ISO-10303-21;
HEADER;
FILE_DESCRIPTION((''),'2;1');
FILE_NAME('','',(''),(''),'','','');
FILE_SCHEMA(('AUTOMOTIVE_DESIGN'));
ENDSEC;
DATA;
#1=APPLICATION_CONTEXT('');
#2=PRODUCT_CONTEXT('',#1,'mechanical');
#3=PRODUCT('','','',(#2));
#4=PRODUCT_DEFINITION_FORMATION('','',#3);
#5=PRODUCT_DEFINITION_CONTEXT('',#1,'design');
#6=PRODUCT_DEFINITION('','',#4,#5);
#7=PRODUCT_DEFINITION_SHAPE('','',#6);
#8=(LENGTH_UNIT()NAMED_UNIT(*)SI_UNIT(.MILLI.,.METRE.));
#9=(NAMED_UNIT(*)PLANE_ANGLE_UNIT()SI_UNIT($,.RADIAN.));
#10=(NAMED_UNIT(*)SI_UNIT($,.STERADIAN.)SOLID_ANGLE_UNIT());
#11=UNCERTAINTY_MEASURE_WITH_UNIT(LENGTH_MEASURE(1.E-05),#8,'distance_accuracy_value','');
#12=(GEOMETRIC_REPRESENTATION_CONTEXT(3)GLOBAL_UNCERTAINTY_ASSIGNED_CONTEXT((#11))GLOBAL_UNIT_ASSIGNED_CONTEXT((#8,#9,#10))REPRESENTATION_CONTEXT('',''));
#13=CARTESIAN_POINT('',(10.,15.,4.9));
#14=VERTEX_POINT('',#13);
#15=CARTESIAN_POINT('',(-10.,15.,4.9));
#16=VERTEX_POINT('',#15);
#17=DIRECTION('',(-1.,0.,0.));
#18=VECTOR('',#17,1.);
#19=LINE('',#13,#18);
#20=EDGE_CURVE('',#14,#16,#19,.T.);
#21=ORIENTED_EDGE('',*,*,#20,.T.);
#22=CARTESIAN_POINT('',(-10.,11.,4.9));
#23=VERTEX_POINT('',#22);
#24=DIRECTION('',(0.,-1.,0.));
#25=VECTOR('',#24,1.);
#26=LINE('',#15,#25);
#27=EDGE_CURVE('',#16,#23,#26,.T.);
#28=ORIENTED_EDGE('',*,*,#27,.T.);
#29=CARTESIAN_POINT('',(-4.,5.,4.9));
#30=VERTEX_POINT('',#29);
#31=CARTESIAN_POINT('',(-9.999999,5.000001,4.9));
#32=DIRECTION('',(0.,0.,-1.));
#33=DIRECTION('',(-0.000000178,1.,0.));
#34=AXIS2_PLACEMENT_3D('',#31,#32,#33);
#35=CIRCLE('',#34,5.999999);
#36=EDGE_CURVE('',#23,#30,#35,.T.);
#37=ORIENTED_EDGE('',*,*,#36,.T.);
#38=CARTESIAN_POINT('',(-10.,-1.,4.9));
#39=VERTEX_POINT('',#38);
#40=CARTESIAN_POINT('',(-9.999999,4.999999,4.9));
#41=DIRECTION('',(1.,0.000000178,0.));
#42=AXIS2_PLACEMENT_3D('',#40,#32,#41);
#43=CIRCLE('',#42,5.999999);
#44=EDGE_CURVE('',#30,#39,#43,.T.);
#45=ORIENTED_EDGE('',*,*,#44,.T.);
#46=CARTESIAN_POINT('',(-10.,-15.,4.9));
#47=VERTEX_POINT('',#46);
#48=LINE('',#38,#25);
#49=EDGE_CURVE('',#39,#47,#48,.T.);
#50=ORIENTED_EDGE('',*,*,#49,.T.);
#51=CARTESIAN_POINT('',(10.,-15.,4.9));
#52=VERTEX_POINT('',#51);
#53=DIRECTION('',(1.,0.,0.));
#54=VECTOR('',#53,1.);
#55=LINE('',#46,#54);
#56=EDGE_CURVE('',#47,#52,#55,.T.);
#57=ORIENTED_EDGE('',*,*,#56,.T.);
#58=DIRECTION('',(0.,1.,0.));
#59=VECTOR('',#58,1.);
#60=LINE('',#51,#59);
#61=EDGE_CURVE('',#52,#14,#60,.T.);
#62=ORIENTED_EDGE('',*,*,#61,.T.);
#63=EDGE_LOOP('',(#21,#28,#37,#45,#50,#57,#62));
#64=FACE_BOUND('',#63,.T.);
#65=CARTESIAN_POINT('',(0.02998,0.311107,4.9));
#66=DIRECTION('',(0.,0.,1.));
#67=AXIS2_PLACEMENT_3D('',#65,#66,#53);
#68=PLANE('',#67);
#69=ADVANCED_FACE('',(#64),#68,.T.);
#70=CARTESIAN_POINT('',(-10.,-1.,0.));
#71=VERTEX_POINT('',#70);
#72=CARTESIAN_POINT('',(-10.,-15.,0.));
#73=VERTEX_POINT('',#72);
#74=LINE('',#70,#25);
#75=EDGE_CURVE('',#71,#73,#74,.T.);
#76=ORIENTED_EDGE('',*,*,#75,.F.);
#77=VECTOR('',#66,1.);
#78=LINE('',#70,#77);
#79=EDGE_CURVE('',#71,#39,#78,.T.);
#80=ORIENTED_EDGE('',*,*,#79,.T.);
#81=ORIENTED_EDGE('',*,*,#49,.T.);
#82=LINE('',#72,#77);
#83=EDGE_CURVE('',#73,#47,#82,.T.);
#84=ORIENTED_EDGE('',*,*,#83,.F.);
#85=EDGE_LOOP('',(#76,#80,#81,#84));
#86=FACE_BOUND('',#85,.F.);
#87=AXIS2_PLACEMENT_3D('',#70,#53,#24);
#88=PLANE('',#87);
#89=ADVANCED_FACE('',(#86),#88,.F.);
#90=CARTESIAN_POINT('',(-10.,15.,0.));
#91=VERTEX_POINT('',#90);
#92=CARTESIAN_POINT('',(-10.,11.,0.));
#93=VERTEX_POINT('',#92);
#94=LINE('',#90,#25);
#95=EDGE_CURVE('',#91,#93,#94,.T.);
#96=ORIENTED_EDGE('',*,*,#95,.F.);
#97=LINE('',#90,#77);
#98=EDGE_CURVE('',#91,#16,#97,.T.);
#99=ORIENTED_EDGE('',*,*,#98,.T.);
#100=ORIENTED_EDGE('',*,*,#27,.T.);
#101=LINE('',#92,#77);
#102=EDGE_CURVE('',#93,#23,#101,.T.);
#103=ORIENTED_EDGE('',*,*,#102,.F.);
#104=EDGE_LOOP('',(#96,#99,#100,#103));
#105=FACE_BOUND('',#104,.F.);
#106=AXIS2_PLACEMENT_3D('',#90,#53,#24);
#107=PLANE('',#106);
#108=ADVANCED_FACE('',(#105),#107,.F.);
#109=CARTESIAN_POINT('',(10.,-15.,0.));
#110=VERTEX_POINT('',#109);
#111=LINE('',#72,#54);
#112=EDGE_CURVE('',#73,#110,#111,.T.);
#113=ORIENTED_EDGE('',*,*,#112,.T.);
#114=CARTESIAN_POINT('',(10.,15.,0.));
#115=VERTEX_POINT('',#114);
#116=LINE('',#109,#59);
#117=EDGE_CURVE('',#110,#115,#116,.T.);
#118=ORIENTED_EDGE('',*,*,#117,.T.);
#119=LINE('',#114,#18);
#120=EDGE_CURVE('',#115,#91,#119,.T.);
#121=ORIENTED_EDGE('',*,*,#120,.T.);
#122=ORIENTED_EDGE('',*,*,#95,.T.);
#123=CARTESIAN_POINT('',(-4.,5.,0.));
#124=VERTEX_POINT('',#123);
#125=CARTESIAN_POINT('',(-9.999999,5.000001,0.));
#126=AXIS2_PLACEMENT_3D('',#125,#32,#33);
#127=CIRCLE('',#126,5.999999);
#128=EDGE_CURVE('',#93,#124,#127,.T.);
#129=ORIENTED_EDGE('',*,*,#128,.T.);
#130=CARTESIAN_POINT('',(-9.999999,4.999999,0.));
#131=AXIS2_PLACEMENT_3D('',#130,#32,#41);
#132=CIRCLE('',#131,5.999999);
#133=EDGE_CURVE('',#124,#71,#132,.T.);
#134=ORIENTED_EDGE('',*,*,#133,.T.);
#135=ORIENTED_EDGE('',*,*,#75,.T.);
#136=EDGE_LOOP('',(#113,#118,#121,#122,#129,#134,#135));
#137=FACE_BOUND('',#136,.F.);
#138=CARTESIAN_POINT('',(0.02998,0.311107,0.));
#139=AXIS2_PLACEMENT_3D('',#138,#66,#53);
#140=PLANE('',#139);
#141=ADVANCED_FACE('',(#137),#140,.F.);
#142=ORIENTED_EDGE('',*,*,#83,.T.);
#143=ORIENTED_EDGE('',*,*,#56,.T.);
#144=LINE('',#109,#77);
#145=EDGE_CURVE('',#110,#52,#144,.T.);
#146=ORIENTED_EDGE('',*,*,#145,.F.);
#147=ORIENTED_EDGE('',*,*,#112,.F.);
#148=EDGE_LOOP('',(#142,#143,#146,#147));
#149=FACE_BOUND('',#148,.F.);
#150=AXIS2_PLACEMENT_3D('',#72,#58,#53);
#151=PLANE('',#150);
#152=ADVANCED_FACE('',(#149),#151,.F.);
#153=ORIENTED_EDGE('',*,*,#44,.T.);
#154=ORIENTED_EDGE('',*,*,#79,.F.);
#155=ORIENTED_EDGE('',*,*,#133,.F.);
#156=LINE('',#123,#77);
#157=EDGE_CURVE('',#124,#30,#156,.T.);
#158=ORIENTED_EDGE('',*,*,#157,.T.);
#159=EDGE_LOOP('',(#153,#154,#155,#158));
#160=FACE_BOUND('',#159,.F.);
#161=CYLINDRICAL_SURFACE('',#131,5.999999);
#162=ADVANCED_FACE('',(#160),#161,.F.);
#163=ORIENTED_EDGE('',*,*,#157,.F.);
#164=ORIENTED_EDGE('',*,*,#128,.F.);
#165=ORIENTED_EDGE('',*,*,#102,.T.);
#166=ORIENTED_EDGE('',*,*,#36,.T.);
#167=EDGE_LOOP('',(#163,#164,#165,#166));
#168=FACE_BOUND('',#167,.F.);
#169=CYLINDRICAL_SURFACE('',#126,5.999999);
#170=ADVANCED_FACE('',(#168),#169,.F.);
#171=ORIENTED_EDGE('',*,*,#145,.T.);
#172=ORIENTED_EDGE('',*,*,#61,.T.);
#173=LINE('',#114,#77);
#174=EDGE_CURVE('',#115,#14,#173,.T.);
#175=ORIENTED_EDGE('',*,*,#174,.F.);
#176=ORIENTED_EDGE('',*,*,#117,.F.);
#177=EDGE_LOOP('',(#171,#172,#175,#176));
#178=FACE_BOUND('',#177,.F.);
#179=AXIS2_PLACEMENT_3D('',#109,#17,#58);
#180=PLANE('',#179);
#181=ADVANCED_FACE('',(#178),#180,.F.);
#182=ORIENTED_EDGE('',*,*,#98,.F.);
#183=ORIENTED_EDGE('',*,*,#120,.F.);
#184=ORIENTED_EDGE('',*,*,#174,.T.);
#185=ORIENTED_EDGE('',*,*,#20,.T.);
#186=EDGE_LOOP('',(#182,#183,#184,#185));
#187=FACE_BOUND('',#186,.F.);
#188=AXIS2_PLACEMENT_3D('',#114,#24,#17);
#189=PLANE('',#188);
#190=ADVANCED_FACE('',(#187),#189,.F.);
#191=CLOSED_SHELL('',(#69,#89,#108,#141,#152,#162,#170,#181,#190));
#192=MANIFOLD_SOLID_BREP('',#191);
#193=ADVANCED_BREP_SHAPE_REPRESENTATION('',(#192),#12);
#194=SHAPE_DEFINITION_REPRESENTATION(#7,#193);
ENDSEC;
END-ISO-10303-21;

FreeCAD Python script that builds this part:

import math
import FreeCAD as App
import Part
import Sketcher

doc = App.newDocument("Part")
body = doc.addObject("PartDesign::Body", "Body")

# Sketch on XY plane
sketch1 = doc.addObject("Sketcher::SketchObject", "Sketch")
body.addObject(sketch1)
sketch1.AttachmentSupport = (doc.XY_Plane, [""])
sketch1.MapMode = "FlatFace"
sketch1.addGeometry(Part.LineSegment(App.Vector(10, -15, 0), App.Vector(10, 15, 0)), False)
sketch1.addGeometry(Part.LineSegment(App.Vector(10, 15, 0), App.Vector(-10, 15, 0)), False)
sketch1.addGeometry(Part.LineSegment(App.Vector(-10, 15, 0), App.Vector(-10, 11, 0)), False)
sketch1.addGeometry(Part.ArcOfCircle(Part.Circle(App.Vector(-10, 5, 0), App.Vector(0, 0, 1), 6), math.radians(0), math.radians(90)), False)
sketch1.addGeometry(Part.ArcOfCircle(Part.Circle(App.Vector(-10, 5, 0), App.Vector(0, 0, 1), 6), math.radians(-90), math.radians(0)), False)
sketch1.addGeometry(Part.LineSegment(App.Vector(-10, -1, 0), App.Vector(-10, -15, 0)), False)
sketch1.addGeometry(Part.LineSegment(App.Vector(-10, -15, 0), App.Vector(10, -15, 0)), False)
sketch1.addConstraint(Sketcher.Constraint("Coincident", 0, 2, 1, 1))
sketch1.addConstraint(Sketcher.Constraint("Coincident", 1, 2, 2, 1))
sketch1.addConstraint(Sketcher.Constraint("Coincident", 2, 2, 3, 2))
sketch1.addConstraint(Sketcher.Constraint("Tangent", 3, 1, 4, 2))
sketch1.addConstraint(Sketcher.Constraint("Coincident", 4, 1, 5, 1))
sketch1.addConstraint(Sketcher.Constraint("Coincident", 5, 2, 6, 1))
sketch1.addConstraint(Sketcher.Constraint("Coincident", 6, 2, 0, 1))
sketch1.addConstraint(Sketcher.Constraint("Vertical", 0))
sketch1.addConstraint(Sketcher.Constraint("Horizontal", 1))
sketch1.addConstraint(Sketcher.Constraint("Vertical", 2))
sketch1.addConstraint(Sketcher.Constraint("Vertical", 5))
sketch1.addConstraint(Sketcher.Constraint("Horizontal", 6))
sketch1.addConstraint(Sketcher.Constraint("Equal", 3, 4))
sketch1.addConstraint(Sketcher.Constraint("Symmetric", 0, 2, 5, 2, -1, 1))
sketch1.addConstraint(Sketcher.Constraint("Horizontal", 4, 3, 3, 1))
sketch1.addConstraint(Sketcher.Constraint("Vertical", 4, 3, 1, 2))
sketch1.addConstraint(Sketcher.Constraint("Vertical", 2, 2, 4, 1))
sketch1.addConstraint(Sketcher.Constraint("Radius", 3, 5.999999))
sketch1.addConstraint(Sketcher.Constraint("DistanceX", 1, 2, 1, 1, 20.0))
sketch1.addConstraint(Sketcher.Constraint("DistanceY", 0, 1, 0, 2, 30.0))
sketch1.addConstraint(Sketcher.Constraint("DistanceY", 2, 2, 2, 1, 4.0))
pad1 = doc.addObject("PartDesign::Pad", "Pad")
body.addObject(pad1)
pad1.Profile = sketch1
pad1.Length = 4.9

doc.recompute()
